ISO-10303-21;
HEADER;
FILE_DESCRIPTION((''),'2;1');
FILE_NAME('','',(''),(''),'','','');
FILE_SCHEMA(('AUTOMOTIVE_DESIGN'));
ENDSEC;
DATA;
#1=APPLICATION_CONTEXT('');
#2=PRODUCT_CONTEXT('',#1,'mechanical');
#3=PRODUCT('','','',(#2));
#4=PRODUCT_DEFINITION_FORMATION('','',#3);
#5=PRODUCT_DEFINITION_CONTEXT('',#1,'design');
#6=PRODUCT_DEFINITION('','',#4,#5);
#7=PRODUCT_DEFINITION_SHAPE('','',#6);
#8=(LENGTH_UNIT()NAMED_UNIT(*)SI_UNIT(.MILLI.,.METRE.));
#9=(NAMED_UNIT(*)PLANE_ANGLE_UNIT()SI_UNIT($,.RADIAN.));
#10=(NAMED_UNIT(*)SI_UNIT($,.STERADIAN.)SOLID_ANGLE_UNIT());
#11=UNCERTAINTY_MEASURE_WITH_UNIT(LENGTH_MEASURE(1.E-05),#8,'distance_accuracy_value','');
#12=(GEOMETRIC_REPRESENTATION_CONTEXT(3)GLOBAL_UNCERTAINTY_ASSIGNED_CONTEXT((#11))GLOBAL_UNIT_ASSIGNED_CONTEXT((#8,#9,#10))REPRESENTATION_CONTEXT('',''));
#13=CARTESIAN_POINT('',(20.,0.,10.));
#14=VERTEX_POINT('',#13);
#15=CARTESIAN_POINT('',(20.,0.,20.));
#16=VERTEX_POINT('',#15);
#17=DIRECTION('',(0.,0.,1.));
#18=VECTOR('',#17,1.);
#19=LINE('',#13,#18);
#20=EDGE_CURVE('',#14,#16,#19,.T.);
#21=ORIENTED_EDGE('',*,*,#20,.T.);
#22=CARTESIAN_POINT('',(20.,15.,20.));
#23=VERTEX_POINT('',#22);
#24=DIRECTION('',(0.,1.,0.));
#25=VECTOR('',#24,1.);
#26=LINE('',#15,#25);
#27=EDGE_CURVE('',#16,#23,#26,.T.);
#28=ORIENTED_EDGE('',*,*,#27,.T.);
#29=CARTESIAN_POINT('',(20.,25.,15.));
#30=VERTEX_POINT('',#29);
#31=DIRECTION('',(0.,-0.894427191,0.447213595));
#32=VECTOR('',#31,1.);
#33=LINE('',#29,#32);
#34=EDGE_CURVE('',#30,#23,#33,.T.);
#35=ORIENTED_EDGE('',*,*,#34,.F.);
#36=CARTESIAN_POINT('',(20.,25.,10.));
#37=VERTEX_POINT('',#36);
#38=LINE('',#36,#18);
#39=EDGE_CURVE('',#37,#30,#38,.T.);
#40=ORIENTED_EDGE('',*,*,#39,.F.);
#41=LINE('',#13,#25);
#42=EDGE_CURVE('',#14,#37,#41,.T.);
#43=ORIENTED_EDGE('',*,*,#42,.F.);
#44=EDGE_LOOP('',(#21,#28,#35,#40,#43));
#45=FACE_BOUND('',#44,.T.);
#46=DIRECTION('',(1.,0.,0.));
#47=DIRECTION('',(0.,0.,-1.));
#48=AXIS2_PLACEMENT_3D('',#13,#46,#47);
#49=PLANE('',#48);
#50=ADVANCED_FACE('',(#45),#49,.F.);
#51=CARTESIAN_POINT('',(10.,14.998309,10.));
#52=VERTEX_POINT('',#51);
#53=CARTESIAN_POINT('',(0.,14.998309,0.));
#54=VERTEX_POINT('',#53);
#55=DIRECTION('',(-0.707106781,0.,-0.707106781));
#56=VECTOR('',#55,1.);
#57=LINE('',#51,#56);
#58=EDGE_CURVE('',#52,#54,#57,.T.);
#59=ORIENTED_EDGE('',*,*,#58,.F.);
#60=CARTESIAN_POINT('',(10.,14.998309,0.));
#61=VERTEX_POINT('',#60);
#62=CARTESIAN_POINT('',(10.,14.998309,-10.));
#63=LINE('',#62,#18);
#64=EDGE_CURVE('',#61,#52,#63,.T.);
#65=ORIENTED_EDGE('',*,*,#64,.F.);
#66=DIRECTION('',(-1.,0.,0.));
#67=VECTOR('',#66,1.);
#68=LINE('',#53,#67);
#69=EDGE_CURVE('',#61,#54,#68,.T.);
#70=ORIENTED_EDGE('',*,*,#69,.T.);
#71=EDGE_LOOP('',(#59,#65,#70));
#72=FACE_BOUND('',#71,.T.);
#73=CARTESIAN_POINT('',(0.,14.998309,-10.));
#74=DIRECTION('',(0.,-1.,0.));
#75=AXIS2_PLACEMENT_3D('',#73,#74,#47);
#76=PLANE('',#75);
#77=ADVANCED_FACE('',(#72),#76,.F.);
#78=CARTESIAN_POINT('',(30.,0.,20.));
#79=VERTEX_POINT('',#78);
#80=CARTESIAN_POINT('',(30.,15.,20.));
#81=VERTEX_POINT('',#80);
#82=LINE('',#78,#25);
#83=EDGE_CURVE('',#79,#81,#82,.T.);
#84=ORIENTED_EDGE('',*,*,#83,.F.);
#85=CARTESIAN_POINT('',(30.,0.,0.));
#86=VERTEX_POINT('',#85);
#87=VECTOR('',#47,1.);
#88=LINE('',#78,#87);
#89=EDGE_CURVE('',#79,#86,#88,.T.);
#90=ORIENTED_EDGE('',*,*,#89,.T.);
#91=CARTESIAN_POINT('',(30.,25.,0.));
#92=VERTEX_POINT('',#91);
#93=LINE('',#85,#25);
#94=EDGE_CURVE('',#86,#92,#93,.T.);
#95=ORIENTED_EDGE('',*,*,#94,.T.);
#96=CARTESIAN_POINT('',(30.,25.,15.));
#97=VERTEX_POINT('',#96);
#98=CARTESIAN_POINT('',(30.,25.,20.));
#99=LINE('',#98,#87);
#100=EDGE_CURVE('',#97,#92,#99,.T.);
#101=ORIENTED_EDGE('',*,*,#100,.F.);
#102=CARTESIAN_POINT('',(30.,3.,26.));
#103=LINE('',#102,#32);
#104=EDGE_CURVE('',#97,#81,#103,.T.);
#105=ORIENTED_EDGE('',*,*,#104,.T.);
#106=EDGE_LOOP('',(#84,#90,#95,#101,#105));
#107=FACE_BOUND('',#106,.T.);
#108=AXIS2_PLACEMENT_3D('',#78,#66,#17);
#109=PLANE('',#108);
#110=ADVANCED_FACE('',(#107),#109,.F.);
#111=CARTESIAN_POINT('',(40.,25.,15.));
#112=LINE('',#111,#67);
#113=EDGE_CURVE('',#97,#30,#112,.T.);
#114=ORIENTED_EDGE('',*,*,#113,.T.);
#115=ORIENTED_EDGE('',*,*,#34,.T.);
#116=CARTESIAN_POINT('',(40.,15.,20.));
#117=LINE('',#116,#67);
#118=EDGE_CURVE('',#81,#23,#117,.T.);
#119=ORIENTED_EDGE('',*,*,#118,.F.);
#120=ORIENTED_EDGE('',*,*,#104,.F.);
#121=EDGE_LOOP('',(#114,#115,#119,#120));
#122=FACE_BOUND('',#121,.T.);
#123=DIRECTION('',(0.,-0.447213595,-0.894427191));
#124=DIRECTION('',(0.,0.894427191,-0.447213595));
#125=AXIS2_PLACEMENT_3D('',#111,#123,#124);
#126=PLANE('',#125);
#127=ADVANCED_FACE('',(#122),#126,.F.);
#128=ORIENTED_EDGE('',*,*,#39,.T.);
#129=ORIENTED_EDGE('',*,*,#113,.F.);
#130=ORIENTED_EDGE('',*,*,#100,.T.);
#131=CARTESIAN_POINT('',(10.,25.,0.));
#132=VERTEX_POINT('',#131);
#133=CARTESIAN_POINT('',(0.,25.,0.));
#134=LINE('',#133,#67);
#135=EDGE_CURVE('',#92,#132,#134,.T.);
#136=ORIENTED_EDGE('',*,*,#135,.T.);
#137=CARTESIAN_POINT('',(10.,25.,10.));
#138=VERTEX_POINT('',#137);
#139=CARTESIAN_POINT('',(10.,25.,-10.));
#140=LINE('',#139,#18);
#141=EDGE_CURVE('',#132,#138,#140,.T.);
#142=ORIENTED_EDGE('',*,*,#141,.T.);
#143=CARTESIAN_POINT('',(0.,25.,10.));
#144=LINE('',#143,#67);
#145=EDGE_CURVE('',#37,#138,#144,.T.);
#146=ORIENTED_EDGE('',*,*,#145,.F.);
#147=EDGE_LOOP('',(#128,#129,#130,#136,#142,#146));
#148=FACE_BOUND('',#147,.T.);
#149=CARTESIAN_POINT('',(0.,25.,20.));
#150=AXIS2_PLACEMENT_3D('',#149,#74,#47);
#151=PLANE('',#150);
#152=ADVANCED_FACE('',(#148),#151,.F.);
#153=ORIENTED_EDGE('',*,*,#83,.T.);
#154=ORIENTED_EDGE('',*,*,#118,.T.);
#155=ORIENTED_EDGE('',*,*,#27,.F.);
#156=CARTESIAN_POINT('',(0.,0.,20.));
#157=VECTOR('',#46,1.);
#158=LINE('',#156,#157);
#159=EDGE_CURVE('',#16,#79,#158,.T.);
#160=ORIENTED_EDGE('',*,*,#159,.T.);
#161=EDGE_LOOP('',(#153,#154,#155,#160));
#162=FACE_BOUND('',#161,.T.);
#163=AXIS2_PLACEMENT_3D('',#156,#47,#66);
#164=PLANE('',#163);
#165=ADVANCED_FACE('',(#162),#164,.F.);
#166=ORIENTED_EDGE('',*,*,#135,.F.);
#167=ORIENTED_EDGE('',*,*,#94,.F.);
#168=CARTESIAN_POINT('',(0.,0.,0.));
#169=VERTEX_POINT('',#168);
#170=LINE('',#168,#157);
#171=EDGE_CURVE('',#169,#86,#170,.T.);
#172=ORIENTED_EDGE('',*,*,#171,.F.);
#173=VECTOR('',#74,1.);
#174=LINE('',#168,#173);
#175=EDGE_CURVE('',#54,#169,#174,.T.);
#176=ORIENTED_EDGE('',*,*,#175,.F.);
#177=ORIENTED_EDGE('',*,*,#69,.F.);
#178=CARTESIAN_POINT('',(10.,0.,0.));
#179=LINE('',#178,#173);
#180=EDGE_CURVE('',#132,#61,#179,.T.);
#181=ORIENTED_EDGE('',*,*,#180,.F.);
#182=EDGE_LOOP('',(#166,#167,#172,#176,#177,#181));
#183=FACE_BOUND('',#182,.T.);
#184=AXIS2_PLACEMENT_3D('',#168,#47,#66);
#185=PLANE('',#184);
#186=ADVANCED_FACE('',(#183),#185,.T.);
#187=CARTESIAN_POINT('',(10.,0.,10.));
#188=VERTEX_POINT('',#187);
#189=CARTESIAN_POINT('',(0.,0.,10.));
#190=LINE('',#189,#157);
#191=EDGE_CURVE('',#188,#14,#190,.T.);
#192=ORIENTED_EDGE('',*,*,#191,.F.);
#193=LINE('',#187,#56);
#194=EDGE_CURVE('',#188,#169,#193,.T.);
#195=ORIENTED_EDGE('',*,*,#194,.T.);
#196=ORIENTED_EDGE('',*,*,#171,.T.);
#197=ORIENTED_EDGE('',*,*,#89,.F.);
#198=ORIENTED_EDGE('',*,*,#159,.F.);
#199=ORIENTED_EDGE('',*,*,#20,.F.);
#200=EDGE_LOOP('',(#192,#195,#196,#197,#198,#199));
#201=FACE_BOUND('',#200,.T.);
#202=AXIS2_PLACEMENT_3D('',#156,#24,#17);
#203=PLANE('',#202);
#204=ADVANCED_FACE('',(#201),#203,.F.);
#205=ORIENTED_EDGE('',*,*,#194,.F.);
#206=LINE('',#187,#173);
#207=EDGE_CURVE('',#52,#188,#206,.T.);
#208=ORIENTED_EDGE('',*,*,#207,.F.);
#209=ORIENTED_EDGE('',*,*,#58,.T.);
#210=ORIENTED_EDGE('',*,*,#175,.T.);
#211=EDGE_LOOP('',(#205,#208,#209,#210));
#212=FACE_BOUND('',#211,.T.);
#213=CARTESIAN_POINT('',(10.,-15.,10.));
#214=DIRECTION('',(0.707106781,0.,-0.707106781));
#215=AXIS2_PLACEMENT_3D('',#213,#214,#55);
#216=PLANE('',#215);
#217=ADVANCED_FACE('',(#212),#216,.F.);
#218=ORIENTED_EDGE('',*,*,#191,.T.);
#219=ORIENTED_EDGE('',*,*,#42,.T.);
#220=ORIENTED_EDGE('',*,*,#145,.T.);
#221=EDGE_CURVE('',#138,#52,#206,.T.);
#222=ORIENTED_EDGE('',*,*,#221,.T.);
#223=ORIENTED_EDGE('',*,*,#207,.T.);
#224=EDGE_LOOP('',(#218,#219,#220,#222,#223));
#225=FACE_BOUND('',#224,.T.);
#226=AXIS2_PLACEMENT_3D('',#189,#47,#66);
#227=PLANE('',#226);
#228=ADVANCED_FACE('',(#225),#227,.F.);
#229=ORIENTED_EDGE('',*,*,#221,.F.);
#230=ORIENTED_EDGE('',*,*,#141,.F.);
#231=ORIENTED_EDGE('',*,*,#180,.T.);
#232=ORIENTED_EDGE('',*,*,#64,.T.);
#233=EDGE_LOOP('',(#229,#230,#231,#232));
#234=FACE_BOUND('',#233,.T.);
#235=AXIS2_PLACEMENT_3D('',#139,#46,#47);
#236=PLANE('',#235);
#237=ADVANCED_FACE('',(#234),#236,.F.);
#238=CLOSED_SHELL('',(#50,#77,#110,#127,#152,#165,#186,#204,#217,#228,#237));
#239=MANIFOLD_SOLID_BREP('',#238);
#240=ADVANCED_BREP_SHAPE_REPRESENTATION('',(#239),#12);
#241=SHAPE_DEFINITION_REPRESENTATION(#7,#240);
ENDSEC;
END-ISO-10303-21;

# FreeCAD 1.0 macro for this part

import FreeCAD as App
import Part
import Sketcher

V = App.Vector


def add_polygon(sketch, points):
    """Adds a closed chain of lines whose ends are joined by coincident constraints."""
    first, n = sketch.GeometryCount, len(points)
    for a, b in zip(points, points[1:] + points[:1]):
        sketch.addGeometry(Part.LineSegment(App.Vector(*a, 0), App.Vector(*b, 0)), False)
    for i in range(n):
        sketch.addConstraint(Sketcher.Constraint("Coincident", first + i, 2, first + (i + 1) % n, 1))

doc = App.newDocument("Part")
body = doc.addObject("PartDesign::Body", "Body")

# Sketch on XY plane
sketch1 = body.newObject("Sketcher::SketchObject", "Sketch")
sketch1.AttachmentSupport = (doc.getObject("XY_Plane"), [""])
sketch1.MapMode = "FlatFace"
add_polygon(sketch1, [(0, 25), (0, 0), (30, 0), (30, 25)])  # lines 0-3
sketch1.addConstraint([
    Sketcher.Constraint("Vertical", 0),
    Sketcher.Constraint("Horizontal", 1),
    Sketcher.Constraint("Vertical", 2),
    Sketcher.Constraint("Horizontal", 3),
    Sketcher.Constraint("Coincident", 0, 2, -1, 1),
    Sketcher.Constraint("DistanceX", 1, 1, 1, 2, 30.0),
    Sketcher.Constraint("DistanceY", 0, 2, 0, 1, 25.0),
])
pad1 = body.newObject("PartDesign::Pad", "Pad")
pad1.Profile = sketch1
pad1.Length = 20

# Sketch on XY plane
sketch2 = body.newObject("Sketcher::SketchObject", "Sketch001")
sketch2.AttachmentSupport = (doc.getObject("XY_Plane"), [""])
sketch2.MapMode = "FlatFace"
sketch2.AttachmentOffset = App.Placement(V(0, 0, 20), App.Rotation())
add_polygon(sketch2, [(0, 25), (0, 0), (20, 0), (20, 25)])  # lines 0-3
sketch2.addConstraint([
    Sketcher.Constraint("Vertical", 0),
    Sketcher.Constraint("Horizontal", 1),
    Sketcher.Constraint("Vertical", 2),
    Sketcher.Constraint("Horizontal", 3),
    Sketcher.Constraint("Coincident", 0, 2, -1, 1),
    Sketcher.Constraint("DistanceX", 1, 1, 1, 2, 20.0),
    Sketcher.Constraint("DistanceY", 0, 2, 0, 1, 25.0),
])
pocket1 = body.newObject("PartDesign::Pocket", "Pocket")
pocket1.Profile = sketch2
pocket1.Length = 10

# Sketch on YZ plane
sketch3 = body.newObject("Sketcher::SketchObject", "Sketch002")
sketch3.AttachmentSupport = (doc.getObject("YZ_Plane"), [""])
sketch3.MapMode = "FlatFace"
sketch3.AttachmentOffset = App.Placement(V(0, 0, 20), App.Rotation())
add_polygon(sketch3, [(25, 15), (15, 20), (25, 20)])  # lines 0-2
sketch3.addConstraint([
    Sketcher.Constraint("Horizontal", 1),
    Sketcher.Constraint("Vertical", 2),
    Sketcher.Constraint("DistanceX", 1, 1, 1, 2, 10.0),
    Sketcher.Constraint("DistanceY", 2, 2, 2, 1, 5.0),
    Sketcher.Constraint("DistanceX", -1, 1, 0, 2, 15.0),
    Sketcher.Constraint("DistanceY", -1, 1, 0, 2, 20.0),
])
pocket2 = body.newObject("PartDesign::Pocket", "Pocket001")
pocket2.Profile = sketch3
pocket2.Length = 20
pocket2.Reversed = True

# Sketch on XZ plane
sketch4 = body.newObject("Sketcher::SketchObject", "Sketch003")
sketch4.AttachmentSupport = (doc.getObject("XZ_Plane"), [""])
sketch4.MapMode = "FlatFace"
sketch4.AttachmentOffset = App.Placement(V(0, 0, -25), App.Rotation())
add_polygon(sketch4, [(0, 10), (10, 10), (0, 0)])  # lines 0-2
sketch4.addConstraint([
    Sketcher.Constraint("Horizontal", 0),
    Sketcher.Constraint("Vertical", 2),
    Sketcher.Constraint("Coincident", 1, 2, -1, 1),
    Sketcher.Constraint("Equal", 0, 2),
    Sketcher.Constraint("DistanceX", 0, 1, 0, 2, 10.0),
])
pocket3 = body.newObject("PartDesign::Pocket", "Pocket002")
pocket3.Profile = sketch4
pocket3.Length = 40
pocket3.Reversed = True

# Sketch on XY plane
sketch5 = body.newObject("Sketcher::SketchObject", "Sketch004")
sketch5.AttachmentSupport = (doc.getObject("XY_Plane"), [""])
sketch5.MapMode = "FlatFace"
sketch5.AttachmentOffset = App.Placement(V(0, 0, 10), App.Rotation())
add_polygon(sketch5, [(0, 25), (0, 15), (10, 15), (10, 25)])  # lines 0-3
sketch5.addConstraint([
    Sketcher.Constraint("Vertical", 0),
    Sketcher.Constraint("Horizontal", 1),
    Sketcher.Constraint("Vertical", 2),
    Sketcher.Constraint("Horizontal", 3),
    Sketcher.Constraint("PointOnObject", 0, 2, -2),
    Sketcher.Constraint("DistanceX", 1, 1, 1, 2, 10.0),
    Sketcher.Constraint("DistanceY", -1, 1, 2, 2, 25.0),
    Sketcher.Constraint("DistanceY", 0, 2, 0, 1, 10.001691),
])
pocket4 = body.newObject("PartDesign::Pocket", "Pocket003")
pocket4.Profile = sketch5
pocket4.Length = 20

doc.recompute()
